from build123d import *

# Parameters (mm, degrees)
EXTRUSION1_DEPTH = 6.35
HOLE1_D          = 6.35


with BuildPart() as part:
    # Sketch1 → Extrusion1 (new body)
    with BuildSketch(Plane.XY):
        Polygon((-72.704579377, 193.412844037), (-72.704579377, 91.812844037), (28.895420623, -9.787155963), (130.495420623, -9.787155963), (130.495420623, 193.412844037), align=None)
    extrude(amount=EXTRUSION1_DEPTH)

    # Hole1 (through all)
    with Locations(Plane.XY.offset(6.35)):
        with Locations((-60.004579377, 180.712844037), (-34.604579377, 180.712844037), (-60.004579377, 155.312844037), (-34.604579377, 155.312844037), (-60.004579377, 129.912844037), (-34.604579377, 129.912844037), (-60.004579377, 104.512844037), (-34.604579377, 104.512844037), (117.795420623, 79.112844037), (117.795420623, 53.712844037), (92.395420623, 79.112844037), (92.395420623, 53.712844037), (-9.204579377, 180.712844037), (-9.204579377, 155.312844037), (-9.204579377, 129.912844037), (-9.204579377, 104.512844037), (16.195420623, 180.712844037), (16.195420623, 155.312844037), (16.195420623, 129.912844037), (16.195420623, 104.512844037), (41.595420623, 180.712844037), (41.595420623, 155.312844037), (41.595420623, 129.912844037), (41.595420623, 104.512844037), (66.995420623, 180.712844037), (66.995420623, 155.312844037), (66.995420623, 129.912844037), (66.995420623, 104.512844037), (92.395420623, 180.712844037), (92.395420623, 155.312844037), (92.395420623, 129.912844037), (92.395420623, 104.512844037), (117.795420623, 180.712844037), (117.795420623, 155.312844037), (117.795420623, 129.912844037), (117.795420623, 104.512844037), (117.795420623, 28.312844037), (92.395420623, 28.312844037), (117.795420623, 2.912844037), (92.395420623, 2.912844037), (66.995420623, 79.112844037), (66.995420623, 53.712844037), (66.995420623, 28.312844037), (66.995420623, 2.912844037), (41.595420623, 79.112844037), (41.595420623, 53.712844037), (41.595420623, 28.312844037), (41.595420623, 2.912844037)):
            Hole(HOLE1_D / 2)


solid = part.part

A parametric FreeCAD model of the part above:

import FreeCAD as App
import Part
import Sketcher
from FreeCAD import Vector
Q = App.Units.Quantity


def add_polygon(sketch, points):
    """Adds a closed chain of lines whose ends are joined by coincident constraints."""
    first, n = sketch.GeometryCount, len(points)
    for a, b in zip(points, points[1:] + points[:1]):
        sketch.addGeometry(Part.LineSegment(App.Vector(*a, 0), App.Vector(*b, 0)), False)
    for i in range(n):
        sketch.addConstraint(Sketcher.Constraint("Coincident", first + i, 2, first + (i + 1) % n, 1))

doc = App.newDocument("Part")
body = doc.addObject("PartDesign::Body", "Body")

# Sketch on XY plane
sketch1 = body.newObject("Sketcher::SketchObject", "Sketch")
sketch1.AttachmentSupport = (doc.getObject("XY_Plane"), [""])
sketch1.MapMode = "FlatFace"
add_polygon(sketch1, [(-73, 193), (-73, 92), (29, -10), (130, -10), (130, 193)])  # lines 0-4
sketch1.addConstraint([
    Sketcher.Constraint("Vertical", 0),
    Sketcher.Constraint("Horizontal", 2),
    Sketcher.Constraint("Vertical", 3),
    Sketcher.Constraint("Horizontal", 4),
    Sketcher.Constraint("Equal", 2, 0),
    Sketcher.Constraint("Equal", 4, 3),
    Sketcher.Constraint("DistanceX", 2, 1, 2, 2, Q("4 in")),
    Sketcher.Constraint("DistanceX", 4, 2, 4, 1, Q("8 in")),
    Sketcher.Constraint("DistanceX", 0, 2, -1, 1, Q("72.704579 mm")),
    Sketcher.Constraint("DistanceY", -1, 1, 0, 2, Q("91.812844 mm")),
])
pad1 = body.newObject("PartDesign::Pad", "Pad")
pad1.Profile = sketch1
pad1.Length = Q("0.25 in")

# Sketch on XY plane
sketch2 = body.newObject("Sketcher::SketchObject", "Sketch001")
sketch2.AttachmentSupport = (doc.getObject("XY_Plane"), [""])
sketch2.MapMode = "FlatFace"
sketch2.AttachmentOffset = App.Placement(Vector(0, 0, 0.25 * 25.4), App.Rotation())
sketch2.addGeometry([
    Part.Circle(Vector(-60, 180.7, 0), Vector(0, 0, 1), 3.2),  # 0
    Part.Circle(Vector(-34.6, 180.7, 0), Vector(0, 0, 1), 3.2),  # 1
    Part.Circle(Vector(-60, 155.3, 0), Vector(0, 0, 1), 3.2),  # 2
    Part.Circle(Vector(-34.6, 155.3, 0), Vector(0, 0, 1), 3.2),  # 3
    Part.Circle(Vector(-60, 129.9, 0), Vector(0, 0, 1), 3.2),  # 4
    Part.Circle(Vector(-34.6, 129.9, 0), Vector(0, 0, 1), 3.2),  # 5
    Part.Circle(Vector(-60, 104.5, 0), Vector(0, 0, 1), 3.2),  # 6
    Part.Circle(Vector(-34.6, 104.5, 0), Vector(0, 0, 1), 3.2),  # 7
    Part.Circle(Vector(117.8, 79.1, 0), Vector(0, 0, 1), 3.2),  # 8
    Part.Circle(Vector(117.8, 53.7, 0), Vector(0, 0, 1), 3.2),  # 9
    Part.Circle(Vector(92.4, 79.1, 0), Vector(0, 0, 1), 3.2),  # 10
    Part.Circle(Vector(92.4, 53.7, 0), Vector(0, 0, 1), 3.2),  # 11
    Part.Circle(Vector(-9.2, 180.7, 0), Vector(0, 0, 1), 3.2),  # 12
    Part.Circle(Vector(-9.2, 155.3, 0), Vector(0, 0, 1), 3.2),  # 13
    Part.Circle(Vector(-9.2, 129.9, 0), Vector(0, 0, 1), 3.2),  # 14
    Part.Circle(Vector(-9.2, 104.5, 0), Vector(0, 0, 1), 3.2),  # 15
    Part.Circle(Vector(16.2, 180.7, 0), Vector(0, 0, 1), 3.2),  # 16
    Part.Circle(Vector(16.2, 155.3, 0), Vector(0, 0, 1), 3.2),  # 17
    Part.Circle(Vector(16.2, 129.9, 0), Vector(0, 0, 1), 3.2),  # 18
    Part.Circle(Vector(16.2, 104.5, 0), Vector(0, 0, 1), 3.2),  # 19
    Part.Circle(Vector(41.6, 180.7, 0), Vector(0, 0, 1), 3.2),  # 20
    Part.Circle(Vector(41.6, 155.3, 0), Vector(0, 0, 1), 3.2),  # 21
    Part.Circle(Vector(41.6, 129.9, 0), Vector(0, 0, 1), 3.2),  # 22
    Part.Circle(Vector(41.6, 104.5, 0), Vector(0, 0, 1), 3.2),  # 23
    Part.Circle(Vector(67, 180.7, 0), Vector(0, 0, 1), 3.2),  # 24
    Part.Circle(Vector(67, 155.3, 0), Vector(0, 0, 1), 3.2),  # 25
    Part.Circle(Vector(67, 129.9, 0), Vector(0, 0, 1), 3.2),  # 26
    Part.Circle(Vector(67, 104.5, 0), Vector(0, 0, 1), 3.2),  # 27
    Part.Circle(Vector(92.4, 180.7, 0), Vector(0, 0, 1), 3.2),  # 28
    Part.Circle(Vector(92.4, 155.3, 0), Vector(0, 0, 1), 3.2),  # 29
    Part.Circle(Vector(92.4, 129.9, 0), Vector(0, 0, 1), 3.2),  # 30
    Part.Circle(Vector(92.4, 104.5, 0), Vector(0, 0, 1), 3.2),  # 31
    Part.Circle(Vector(117.8, 180.7, 0), Vector(0, 0, 1), 3.2),  # 32
    Part.Circle(Vector(117.8, 155.3, 0), Vector(0, 0, 1), 3.2),  # 33
    Part.Circle(Vector(117.8, 129.9, 0), Vector(0, 0, 1), 3.2),  # 34
    Part.Circle(Vector(117.8, 104.5, 0), Vector(0, 0, 1), 3.2),  # 35
    Part.Circle(Vector(117.8, 28.3, 0), Vector(0, 0, 1), 3.2),  # 36
    Part.Circle(Vector(92.4, 28.3, 0), Vector(0, 0, 1), 3.2),  # 37
    Part.Circle(Vector(117.8, 2.9, 0), Vector(0, 0, 1), 3.2),  # 38
    Part.Circle(Vector(92.4, 2.9, 0), Vector(0, 0, 1), 3.2),  # 39
    Part.Circle(Vector(67, 79.1, 0), Vector(0, 0, 1), 3.2),  # 40
    Part.Circle(Vector(67, 53.7, 0), Vector(0, 0, 1), 3.2),  # 41
    Part.Circle(Vector(67, 28.3, 0), Vector(0, 0, 1), 3.2),  # 42
    Part.Circle(Vector(67, 2.9, 0), Vector(0, 0, 1), 3.2),  # 43
    Part.Circle(Vector(41.6, 79.1, 0), Vector(0, 0, 1), 3.2),  # 44
    Part.Circle(Vector(41.6, 53.7, 0), Vector(0, 0, 1), 3.2),  # 45
    Part.Circle(Vector(41.6, 28.3, 0), Vector(0, 0, 1), 3.2),  # 46
    Part.Circle(Vector(41.6, 2.9, 0), Vector(0, 0, 1), 3.2),  # 47
], False)
sketch2.addConstraint([
    Sketcher.Constraint("Equal", 0, 1),
    Sketcher.Constraint("Equal", 1, 2),
    Sketcher.Constraint("Equal", 2, 3),
    Sketcher.Constraint("Equal", 3, 4),
    Sketcher.Constraint("Equal", 4, 5),
    Sketcher.Constraint("Equal", 5, 6),
    Sketcher.Constraint("Equal", 6, 7),
    Sketcher.Constraint("Equal", 7, 8),
    Sketcher.Constraint("Equal", 8, 9),
    Sketcher.Constraint("Equal", 9, 10),
    Sketcher.Constraint("Equal", 10, 11),
    Sketcher.Constraint("Equal", 11, 12),
    Sketcher.Constraint("Equal", 12, 13),
    Sketcher.Constraint("Equal", 13, 14),
    Sketcher.Constraint("Equal", 14, 15),
    Sketcher.Constraint("Equal", 15, 16),
    Sketcher.Constraint("Equal", 16, 17),
    Sketcher.Constraint("Equal", 17, 18),
    Sketcher.Constraint("Equal", 18, 19),
    Sketcher.Constraint("Equal", 19, 20),
    Sketcher.Constraint("Equal", 20, 21),
    Sketcher.Constraint("Equal", 21, 22),
    Sketcher.Constraint("Equal", 22, 23),
    Sketcher.Constraint("Equal", 23, 24),
    Sketcher.Constraint("Equal", 24, 25),
    Sketcher.Constraint("Equal", 25, 26),
    Sketcher.Constraint("Equal", 26, 27),
    Sketcher.Constraint("Equal", 27, 28),
    Sketcher.Constraint("Equal", 28, 29),
    Sketcher.Constraint("Equal", 29, 30),
    Sketcher.Constraint("Equal", 30, 31),
    Sketcher.Constraint("Equal", 31, 32),
    Sketcher.Constraint("Equal", 32, 33),
    Sketcher.Constraint("Equal", 33, 34),
    Sketcher.Constraint("Equal", 34, 35),
    Sketcher.Constraint("Equal", 35, 36),
    Sketcher.Constraint("Equal", 36, 37),
    Sketcher.Constraint("Equal", 37, 38),
    Sketcher.Constraint("Equal", 38, 39),
    Sketcher.Constraint("Equal", 39, 40),
    Sketcher.Constraint("Equal", 40, 41),
    Sketcher.Constraint("Equal", 41, 42),
    Sketcher.Constraint("Equal", 42, 43),
    Sketcher.Constraint("Equal", 43, 44),
    Sketcher.Constraint("Equal", 44, 45),
    Sketcher.Constraint("Equal", 45, 46),
    Sketcher.Constraint("Equal", 46, 47),
    Sketcher.Constraint("Horizontal", 0, 3, 1, 3),
    Sketcher.Constraint("Horizontal", 2, 3, 3, 3),
    Sketcher.Constraint("Horizontal", 4, 3, 5, 3),
    Sketcher.Constraint("Horizontal", 6, 3, 7, 3),
    Sketcher.Constraint("Horizontal", 8, 3, 10, 3),
    Sketcher.Constraint("Horizontal", 9, 3, 11, 3),
    Sketcher.Constraint("Horizontal", 1, 3, 12, 3),
    Sketcher.Constraint("Horizontal", 3, 3, 13, 3),
    Sketcher.Constraint("Horizontal", 5, 3, 14, 3),
    Sketcher.Constraint("Horizontal", 7, 3, 15, 3),
    Sketcher.Constraint("Horizontal", 12, 3, 16, 3),
    Sketcher.Constraint("Horizontal", 13, 3, 17, 3),
    Sketcher.Constraint("Horizontal", 14, 3, 18, 3),
    Sketcher.Constraint("Horizontal", 15, 3, 19, 3),
    Sketcher.Constraint("Horizontal", 16, 3, 20, 3),
    Sketcher.Constraint("Horizontal", 17, 3, 21, 3),
    Sketcher.Constraint("Horizontal", 18, 3, 22, 3),
    Sketcher.Constraint("Horizontal", 19, 3, 23, 3),
    Sketcher.Constraint("Horizontal", 20, 3, 24, 3),
    Sketcher.Constraint("Horizontal", 21, 3, 25, 3),
    Sketcher.Constraint("Horizontal", 22, 3, 26, 3),
    Sketcher.Constraint("Horizontal", 23, 3, 27, 3),
    Sketcher.Constraint("Horizontal", 24, 3, 28, 3),
    Sketcher.Constraint("Horizontal", 25, 3, 29, 3),
    Sketcher.Constraint("Horizontal", 26, 3, 30, 3),
    Sketcher.Constraint("Horizontal", 27, 3, 31, 3),
    Sketcher.Constraint("Horizontal", 28, 3, 32, 3),
    Sketcher.Constraint("Horizontal", 29, 3, 33, 3),
    Sketcher.Constraint("Horizontal", 30, 3, 34, 3),
    Sketcher.Constraint("Horizontal", 31, 3, 35, 3),
    Sketcher.Constraint("Horizontal", 36, 3, 37, 3),
    Sketcher.Constraint("Horizontal", 38, 3, 39, 3),
    Sketcher.Constraint("Horizontal", 10, 3, 40, 3),
    Sketcher.Constraint("Horizontal", 11, 3, 41, 3),
    Sketcher.Constraint("Horizontal", 37, 3, 42, 3),
    Sketcher.Constraint("Horizontal", 39, 3, 43, 3),
    Sketcher.Constraint("Horizontal", 40, 3, 44, 3),
    Sketcher.Constraint("Horizontal", 41, 3, 45, 3),
    Sketcher.Constraint("Horizontal", 42, 3, 46, 3),
    Sketcher.Constraint("Horizontal", 43, 3, 47, 3),
    Sketcher.Constraint("Vertical", 0, 3, 2, 3),
    Sketcher.Constraint("Vertical", 1, 3, 3, 3),
    Sketcher.Constraint("Vertical", 2, 3, 4, 3),
    Sketcher.Constraint("Vertical", 3, 3, 5, 3),
    Sketcher.Constraint("Vertical", 4, 3, 6, 3),
    Sketcher.Constraint("Vertical", 5, 3, 7, 3),
    Sketcher.Constraint("Vertical", 8, 3, 9, 3),
    Sketcher.Constraint("Vertical", 10, 3, 11, 3),
    Sketcher.Constraint("Vertical", 12, 3, 13, 3),
    Sketcher.Constraint("Vertical", 13, 3, 14, 3),
    Sketcher.Constraint("Vertical", 14, 3, 15, 3),
    Sketcher.Constraint("Vertical", 16, 3, 17, 3),
    Sketcher.Constraint("Vertical", 17, 3, 18, 3),
    Sketcher.Constraint("Vertical", 18, 3, 19, 3),
    Sketcher.Constraint("Vertical", 20, 3, 21, 3),
    Sketcher.Constraint("Vertical", 21, 3, 22, 3),
    Sketcher.Constraint("Vertical", 22, 3, 23, 3),
    Sketcher.Constraint("Vertical", 24, 3, 25, 3),
    Sketcher.Constraint("Vertical", 25, 3, 26, 3),
    Sketcher.Constraint("Vertical", 26, 3, 27, 3),
    Sketcher.Constraint("Vertical", 11, 3, 28, 3),
    Sketcher.Constraint("Vertical", 28, 3, 29, 3),
    Sketcher.Constraint("Vertical", 29, 3, 30, 3),
    Sketcher.Constraint("Vertical", 30, 3, 31, 3),
    Sketcher.Constraint("Vertical", 9, 3, 32, 3),
    Sketcher.Constraint("Vertical", 32, 3, 33, 3),
    Sketcher.Constraint("Vertical", 33, 3, 34, 3),
    Sketcher.Constraint("Vertical", 34, 3, 35, 3),
    Sketcher.Constraint("Vertical", 35, 3, 36, 3),
    Sketcher.Constraint("Vertical", 31, 3, 37, 3),
    Sketcher.Constraint("Vertical", 36, 3, 38, 3),
    Sketcher.Constraint("Vertical", 37, 3, 39, 3),
    Sketcher.Constraint("Vertical", 27, 3, 40, 3),
    Sketcher.Constraint("Vertical", 40, 3, 41, 3),
    Sketcher.Constraint("Vertical", 41, 3, 42, 3),
    Sketcher.Constraint("Vertical", 42, 3, 43, 3),
    Sketcher.Constraint("Vertical", 23, 3, 44, 3),
    Sketcher.Constraint("Vertical", 44, 3, 45, 3),
    Sketcher.Constraint("Vertical", 45, 3, 46, 3),
    Sketcher.Constraint("Vertical", 46, 3, 47, 3),
    Sketcher.Constraint("Diameter", 0, Q("0.25 in")),
    Sketcher.Constraint("DistanceX", 0, 3, 1, 3, Q("1 in")),
    Sketcher.Constraint("DistanceY", 2, 3, 0, 3, Q("1 in")),
    Sketcher.Constraint("DistanceY", 4, 3, 2, 3, Q("1 in")),
    Sketcher.Constraint("DistanceY", 6, 3, 4, 3, Q("1 in")),
    Sketcher.Constraint("DistanceX", 7, 3, 8, 3, Q("6 in")),
    Sketcher.Constraint("DistanceY", 8, 3, 7, 3, Q("1 in")),
    Sketcher.Constraint("DistanceY", 9, 3, 8, 3, Q("1 in")),
    Sketcher.Constraint("DistanceX", 10, 3, 8, 3, Q("1 in")),
    Sketcher.Constraint("DistanceX", 1, 3, 12, 3, Q("1 in")),
    Sketcher.Constraint("DistanceX", 12, 3, 16, 3, Q("1 in")),
    Sketcher.Constraint("DistanceX", 16, 3, 20, 3, Q("1 in")),
    Sketcher.Constraint("DistanceX", 20, 3, 24, 3, Q("1 in")),
    Sketcher.Constraint("DistanceY", 36, 3, 9, 3, Q("1 in")),
    Sketcher.Constraint("DistanceY", 38, 3, 36, 3, Q("1 in")),
    Sketcher.Constraint("DistanceX", 0, 3, -1, 1, Q("60.004579 mm")),
    Sketcher.Constraint("DistanceY", -1, 1, 0, 3, Q("180.712844 mm")),
])
doc.recompute()
hole = body.newObject("PartDesign::Hole", "Hole")
hole.Profile = sketch2
hole.ThreadType = "None"
hole.Diameter = Q("0.25 in")
hole.DepthType = "ThroughAll"

doc.recompute()
